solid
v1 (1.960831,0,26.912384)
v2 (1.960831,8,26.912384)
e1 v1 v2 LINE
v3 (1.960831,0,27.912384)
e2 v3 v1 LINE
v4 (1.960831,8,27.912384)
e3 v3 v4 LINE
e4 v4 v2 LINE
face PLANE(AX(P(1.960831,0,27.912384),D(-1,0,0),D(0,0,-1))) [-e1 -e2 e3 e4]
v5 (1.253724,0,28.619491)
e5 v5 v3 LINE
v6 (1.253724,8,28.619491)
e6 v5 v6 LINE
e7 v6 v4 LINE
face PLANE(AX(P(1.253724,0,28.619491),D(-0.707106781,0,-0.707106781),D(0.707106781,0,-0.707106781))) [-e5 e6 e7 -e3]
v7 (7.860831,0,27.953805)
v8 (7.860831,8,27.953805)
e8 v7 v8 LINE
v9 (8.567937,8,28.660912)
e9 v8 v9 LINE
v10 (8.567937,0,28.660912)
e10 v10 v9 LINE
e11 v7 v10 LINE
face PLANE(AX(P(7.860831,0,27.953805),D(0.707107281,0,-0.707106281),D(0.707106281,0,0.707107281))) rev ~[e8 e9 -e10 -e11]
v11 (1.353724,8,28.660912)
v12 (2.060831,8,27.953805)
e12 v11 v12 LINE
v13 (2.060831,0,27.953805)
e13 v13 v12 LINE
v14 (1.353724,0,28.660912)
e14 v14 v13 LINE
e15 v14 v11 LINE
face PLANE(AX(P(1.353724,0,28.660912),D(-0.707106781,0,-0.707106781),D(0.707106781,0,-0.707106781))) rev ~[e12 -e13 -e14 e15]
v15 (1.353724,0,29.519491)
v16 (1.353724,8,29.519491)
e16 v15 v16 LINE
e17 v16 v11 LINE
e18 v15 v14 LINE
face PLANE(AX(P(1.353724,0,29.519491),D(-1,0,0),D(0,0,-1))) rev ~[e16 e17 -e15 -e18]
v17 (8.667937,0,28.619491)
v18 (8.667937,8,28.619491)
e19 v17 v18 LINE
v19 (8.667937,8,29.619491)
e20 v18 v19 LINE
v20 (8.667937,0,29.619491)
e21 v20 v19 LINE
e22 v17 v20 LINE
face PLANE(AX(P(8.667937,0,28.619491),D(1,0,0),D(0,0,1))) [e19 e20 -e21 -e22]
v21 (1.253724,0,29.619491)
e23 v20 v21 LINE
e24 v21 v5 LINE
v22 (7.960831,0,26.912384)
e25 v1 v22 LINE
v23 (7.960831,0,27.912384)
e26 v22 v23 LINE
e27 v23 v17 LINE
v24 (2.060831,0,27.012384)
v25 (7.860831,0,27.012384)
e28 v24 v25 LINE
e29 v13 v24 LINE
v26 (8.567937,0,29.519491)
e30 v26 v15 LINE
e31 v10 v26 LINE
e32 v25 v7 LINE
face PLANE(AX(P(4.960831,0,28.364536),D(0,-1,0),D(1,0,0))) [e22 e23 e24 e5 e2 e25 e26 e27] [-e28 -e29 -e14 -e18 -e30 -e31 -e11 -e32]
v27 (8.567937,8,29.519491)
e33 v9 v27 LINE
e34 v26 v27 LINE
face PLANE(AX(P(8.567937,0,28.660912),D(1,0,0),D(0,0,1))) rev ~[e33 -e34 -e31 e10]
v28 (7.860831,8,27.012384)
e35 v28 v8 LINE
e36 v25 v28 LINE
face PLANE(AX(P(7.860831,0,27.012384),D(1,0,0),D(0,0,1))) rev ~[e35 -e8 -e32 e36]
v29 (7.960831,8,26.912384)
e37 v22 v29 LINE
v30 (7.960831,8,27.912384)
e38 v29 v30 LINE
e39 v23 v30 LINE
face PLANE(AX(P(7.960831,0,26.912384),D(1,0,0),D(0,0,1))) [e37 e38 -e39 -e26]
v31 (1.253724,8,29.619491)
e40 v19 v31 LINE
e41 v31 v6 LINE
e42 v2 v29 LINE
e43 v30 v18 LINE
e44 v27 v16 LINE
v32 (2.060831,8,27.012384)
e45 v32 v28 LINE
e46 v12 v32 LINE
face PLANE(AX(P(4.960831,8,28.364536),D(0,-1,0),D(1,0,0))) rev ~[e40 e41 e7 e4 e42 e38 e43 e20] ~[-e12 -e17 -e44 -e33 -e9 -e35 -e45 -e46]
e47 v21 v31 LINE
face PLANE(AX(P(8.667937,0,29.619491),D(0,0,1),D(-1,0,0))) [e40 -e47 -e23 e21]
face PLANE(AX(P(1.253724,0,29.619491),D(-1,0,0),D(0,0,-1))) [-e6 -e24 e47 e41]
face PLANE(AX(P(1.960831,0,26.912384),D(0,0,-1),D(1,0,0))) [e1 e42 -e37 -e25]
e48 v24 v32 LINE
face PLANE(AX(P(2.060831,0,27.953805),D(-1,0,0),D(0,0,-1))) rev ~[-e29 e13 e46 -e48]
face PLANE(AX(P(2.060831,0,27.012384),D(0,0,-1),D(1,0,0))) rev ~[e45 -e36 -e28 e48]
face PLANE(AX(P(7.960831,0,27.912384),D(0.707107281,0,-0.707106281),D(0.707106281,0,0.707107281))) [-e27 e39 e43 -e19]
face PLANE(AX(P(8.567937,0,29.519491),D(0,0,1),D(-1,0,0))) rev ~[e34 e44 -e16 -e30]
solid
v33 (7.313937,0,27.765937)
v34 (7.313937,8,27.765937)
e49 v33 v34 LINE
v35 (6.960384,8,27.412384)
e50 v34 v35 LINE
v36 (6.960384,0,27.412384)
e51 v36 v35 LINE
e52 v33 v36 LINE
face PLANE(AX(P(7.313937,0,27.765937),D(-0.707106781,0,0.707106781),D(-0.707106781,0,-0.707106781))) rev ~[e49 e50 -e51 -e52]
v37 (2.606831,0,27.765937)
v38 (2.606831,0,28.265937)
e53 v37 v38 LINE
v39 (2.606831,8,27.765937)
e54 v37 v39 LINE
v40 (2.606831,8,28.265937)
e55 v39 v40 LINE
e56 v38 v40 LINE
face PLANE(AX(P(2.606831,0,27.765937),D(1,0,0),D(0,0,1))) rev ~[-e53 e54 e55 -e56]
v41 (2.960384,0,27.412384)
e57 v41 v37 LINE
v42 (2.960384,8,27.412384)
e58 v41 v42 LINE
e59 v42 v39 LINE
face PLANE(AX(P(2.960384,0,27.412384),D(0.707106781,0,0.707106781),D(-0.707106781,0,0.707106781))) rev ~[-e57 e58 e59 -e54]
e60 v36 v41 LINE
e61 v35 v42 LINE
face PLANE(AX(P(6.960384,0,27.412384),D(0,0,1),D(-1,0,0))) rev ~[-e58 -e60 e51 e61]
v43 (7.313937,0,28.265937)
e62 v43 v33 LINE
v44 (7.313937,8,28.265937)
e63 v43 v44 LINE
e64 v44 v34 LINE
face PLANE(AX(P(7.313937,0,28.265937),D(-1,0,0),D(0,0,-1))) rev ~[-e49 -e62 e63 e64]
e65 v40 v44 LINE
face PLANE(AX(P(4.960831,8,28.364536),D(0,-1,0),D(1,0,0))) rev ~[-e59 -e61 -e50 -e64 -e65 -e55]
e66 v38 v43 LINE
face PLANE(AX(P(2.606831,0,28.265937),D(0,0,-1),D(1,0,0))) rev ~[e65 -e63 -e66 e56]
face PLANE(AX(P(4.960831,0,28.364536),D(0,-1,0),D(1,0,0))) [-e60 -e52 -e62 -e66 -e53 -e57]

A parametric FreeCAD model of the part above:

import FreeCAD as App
import Part
import Sketcher

V = App.Vector

doc = App.newDocument("Part")
body = doc.addObject("PartDesign::Body", "Body")
body.AllowCompound = True

# Sketch on XZ plane
sketch1 = doc.addObject("Sketcher::SketchObject", "Sketch")
body.addObject(sketch1)
sketch1.AttachmentSupport = (doc.XZ_Plane, [""])
sketch1.MapMode = "FlatFace"
sketch1.addGeometry([
    Part.LineSegment(V(2, 27.9, 0), V(2, 26.9, 0)),  # 0
    Part.LineSegment(V(2, 26.9, 0), V(8, 26.9, 0)),  # 1
    Part.LineSegment(V(8, 26.9, 0), V(8, 27.9, 0)),  # 2
    Part.LineSegment(V(8, 27.9, 0), V(8.7, 28.6, 0)),  # 3
    Part.LineSegment(V(8.7, 28.6, 0), V(8.7, 29.6, 0)),  # 4
    Part.LineSegment(V(8.7, 29.6, 0), V(1.3, 29.6, 0)),  # 5
    Part.LineSegment(V(1.3, 29.6, 0), V(1.3, 28.6, 0)),  # 6
    Part.LineSegment(V(1.3, 28.6, 0), V(2, 27.9, 0)),  # 7
], False)
sketch1.addConstraint([
    Sketcher.Constraint("Coincident", 0, 2, 1, 1),
    Sketcher.Constraint("Coincident", 1, 2, 2, 1),
    Sketcher.Constraint("Coincident", 2, 2, 3, 1),
    Sketcher.Constraint("Coincident", 3, 2, 4, 1),
    Sketcher.Constraint("Coincident", 4, 2, 5, 1),
    Sketcher.Constraint("Coincident", 5, 2, 6, 1),
    Sketcher.Constraint("Coincident", 6, 2, 7, 1),
    Sketcher.Constraint("Coincident", 7, 2, 0, 1),
    Sketcher.Constraint("Vertical", 0),
    Sketcher.Constraint("Horizontal", 1),
    Sketcher.Constraint("Vertical", 2),
    Sketcher.Constraint("Vertical", 4),
    Sketcher.Constraint("Horizontal", 5),
    Sketcher.Constraint("Vertical", 6),
    Sketcher.Constraint("Perpendicular", 3, 7),
    Sketcher.Constraint("Horizontal", 3, 2, 6, 2),
    Sketcher.Constraint("Horizontal", 2, 2, 7, 2),
    Sketcher.Constraint("Equal", 2, 4),
    Sketcher.Constraint("Equal", 3, 7),
    Sketcher.Constraint("DistanceX", 1, 1, 1, 2, 6.0),
    Sketcher.Constraint("DistanceY", 0, 2, 0, 1, 1.0),
    Sketcher.Constraint("Distance", 3, 1.0),
    Sketcher.Constraint("DistanceX", -1, 1, 0, 2, 1.960831),
    Sketcher.Constraint("DistanceY", -1, 1, 3, 2, 28.619491),
])
pad1 = doc.addObject("PartDesign::Pad", "Pad")
body.addObject(pad1)
pad1.Profile = sketch1
pad1.Length = 8
pad1.Reversed = True

# Sketch on XZ plane
sketch2 = doc.addObject("Sketcher::SketchObject", "Sketch001")
body.addObject(sketch2)
sketch2.AttachmentSupport = (doc.XZ_Plane, [""])
sketch2.MapMode = "FlatFace"
sketch2.addGeometry([
    Part.LineSegment(V(1.35, 28.66, 0), V(2.06, 27.95, 0)),  # 0
    Part.LineSegment(V(2.06, 27.95, 0), V(2.06, 27.01, 0)),  # 1
    Part.LineSegment(V(2.06, 27.01, 0), V(7.86, 27.01, 0)),  # 2
    Part.LineSegment(V(7.86, 27.01, 0), V(7.86, 27.95, 0)),  # 3
    Part.LineSegment(V(7.86, 27.95, 0), V(8.57, 28.66, 0)),  # 4
    Part.LineSegment(V(8.57, 28.66, 0), V(8.57, 29.52, 0)),  # 5
    Part.LineSegment(V(8.57, 29.52, 0), V(1.35, 29.52, 0)),  # 6
    Part.LineSegment(V(1.35, 29.52, 0), V(1.35, 28.66, 0)),  # 7
    Part.LineSegment(V(7.31, 27.77, 0), V(6.96, 27.41, 0)),  # 8
    Part.LineSegment(V(6.96, 27.41, 0), V(2.96, 27.41, 0)),  # 9
    Part.LineSegment(V(2.96, 27.41, 0), V(2.61, 27.77, 0)),  # 10
    Part.LineSegment(V(2.61, 27.77, 0), V(2.61, 28.27, 0)),  # 11
    Part.LineSegment(V(2.61, 28.27, 0), V(7.31, 28.27, 0)),  # 12
    Part.LineSegment(V(7.31, 28.27, 0), V(7.31, 27.77, 0)),  # 13
], False)
sketch2.addConstraint([
    Sketcher.Constraint("Coincident", 0, 2, 1, 1),
    Sketcher.Constraint("Coincident", 1, 2, 2, 1),
    Sketcher.Constraint("Coincident", 2, 2, 3, 1),
    Sketcher.Constraint("Coincident", 3, 2, 4, 1),
    Sketcher.Constraint("Coincident", 4, 2, 5, 1),
    Sketcher.Constraint("Coincident", 5, 2, 6, 1),
    Sketcher.Constraint("Coincident", 6, 2, 7, 1),
    Sketcher.Constraint("Coincident", 7, 2, 0, 1),
    Sketcher.Constraint("Coincident", 8, 2, 9, 1),
    Sketcher.Constraint("Coincident", 9, 2, 10, 1),
    Sketcher.Constraint("Coincident", 10, 2, 11, 1),
    Sketcher.Constraint("Coincident", 11, 2, 12, 1),
    Sketcher.Constraint("Coincident", 12, 2, 13, 1),
    Sketcher.Constraint("Coincident", 13, 2, 8, 1),
    Sketcher.Constraint("Vertical", 1),
    Sketcher.Constraint("Horizontal", 2),
    Sketcher.Constraint("Vertical", 3),
    Sketcher.Constraint("Vertical", 5),
    Sketcher.Constraint("Horizontal", 6),
    Sketcher.Constraint("Vertical", 7),
    Sketcher.Constraint("Horizontal", 9),
    Sketcher.Constraint("Vertical", 11),
    Sketcher.Constraint("Horizontal", 12),
    Sketcher.Constraint("Vertical", 13),
    Sketcher.Constraint("Perpendicular", 0, 4),
    Sketcher.Constraint("Parallel", 4, 8),
    Sketcher.Constraint("Perpendicular", 8, 10),
    Sketcher.Constraint("Horizontal", 0, 2, 3, 2),
    Sketcher.Constraint("Horizontal", 4, 2, 7, 2),
    Sketcher.Constraint("Horizontal", 10, 2, 13, 2),
    Sketcher.Constraint("Equal", 0, 4),
    Sketcher.Constraint("DistanceX", 9, 2, 9, 1, 4.0),
    Sketcher.Constraint("Distance", 0, 1.0),
    Sketcher.Constraint("DistanceX", 2, 1, 2, 2, 5.8),
    Sketcher.Constraint("DistanceY", 11, 1, 11, 2, 0.5),
    Sketcher.Constraint("Distance", 8, 0.499999),
    Sketcher.Constraint("DistanceY", 2, 2, 8, 2, 0.4),
    Sketcher.Constraint("DistanceX", 0, 2, 10, 2, 0.546),
    Sketcher.Constraint("DistanceY", 1, 2, 1, 1, 0.941421),
    Sketcher.Constraint("DistanceY", 5, 1, 5, 2, 0.858579),
    Sketcher.Constraint("DistanceX", -1, 1, 0, 2, 2.060831),
    Sketcher.Constraint("DistanceY", -1, 1, 4, 2, 28.660912),
])
pocket1 = doc.addObject("PartDesign::Pocket", "Pocket")
body.addObject(pocket1)
pocket1.Profile = sketch2
pocket1.Length = 8

doc.recompute()
